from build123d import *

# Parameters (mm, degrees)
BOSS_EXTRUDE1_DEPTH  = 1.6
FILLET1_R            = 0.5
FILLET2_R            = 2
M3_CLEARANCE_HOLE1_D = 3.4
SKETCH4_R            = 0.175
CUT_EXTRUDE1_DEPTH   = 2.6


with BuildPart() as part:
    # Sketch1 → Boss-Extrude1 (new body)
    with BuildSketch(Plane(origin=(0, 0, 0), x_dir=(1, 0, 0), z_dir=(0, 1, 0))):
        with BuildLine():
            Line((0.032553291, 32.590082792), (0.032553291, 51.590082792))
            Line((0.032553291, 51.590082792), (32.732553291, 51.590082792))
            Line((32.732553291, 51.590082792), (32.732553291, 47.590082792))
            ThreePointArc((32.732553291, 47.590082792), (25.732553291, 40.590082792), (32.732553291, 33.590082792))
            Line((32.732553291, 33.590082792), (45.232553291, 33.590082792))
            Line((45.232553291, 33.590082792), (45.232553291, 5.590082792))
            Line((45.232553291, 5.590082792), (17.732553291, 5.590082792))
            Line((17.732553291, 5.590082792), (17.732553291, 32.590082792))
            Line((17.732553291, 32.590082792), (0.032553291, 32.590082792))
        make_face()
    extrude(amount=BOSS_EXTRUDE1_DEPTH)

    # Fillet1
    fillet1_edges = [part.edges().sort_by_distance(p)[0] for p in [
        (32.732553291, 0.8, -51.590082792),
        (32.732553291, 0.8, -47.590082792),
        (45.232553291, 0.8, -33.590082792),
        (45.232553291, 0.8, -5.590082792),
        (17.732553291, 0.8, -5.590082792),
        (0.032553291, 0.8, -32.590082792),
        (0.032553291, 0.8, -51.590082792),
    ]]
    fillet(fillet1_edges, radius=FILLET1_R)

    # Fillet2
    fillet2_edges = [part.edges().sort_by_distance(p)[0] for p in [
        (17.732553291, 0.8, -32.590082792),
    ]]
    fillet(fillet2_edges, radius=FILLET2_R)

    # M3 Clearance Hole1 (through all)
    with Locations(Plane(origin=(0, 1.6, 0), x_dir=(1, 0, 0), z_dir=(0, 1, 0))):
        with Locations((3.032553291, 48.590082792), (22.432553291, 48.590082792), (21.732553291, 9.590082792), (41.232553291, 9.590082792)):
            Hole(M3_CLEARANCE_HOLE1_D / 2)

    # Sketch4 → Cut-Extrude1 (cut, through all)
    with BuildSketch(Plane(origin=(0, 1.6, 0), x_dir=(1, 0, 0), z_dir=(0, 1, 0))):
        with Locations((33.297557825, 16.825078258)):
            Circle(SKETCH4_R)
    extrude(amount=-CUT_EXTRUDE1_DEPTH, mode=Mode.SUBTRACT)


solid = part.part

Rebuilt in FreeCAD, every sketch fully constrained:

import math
import FreeCAD as App
import Part
import Sketcher

V = App.Vector
Q = App.Units.Quantity


def edges_at(feature, points):
    """Names of the edges that pass closest to the given points."""
    edges = feature.Shape.Edges
    near = lambda p: min(range(len(edges)), key=lambda i: edges[i].distToShape(Part.Vertex(*p))[0])
    return sorted({f"Edge{near(p) + 1}" for p in points})

doc = App.newDocument("Part")
body = doc.addObject("PartDesign::Body", "Body")

# Sketch on XZ plane
sketch1 = doc.addObject("Sketcher::SketchObject", "Sketch")
body.addObject(sketch1)
sketch1.AttachmentSupport = (doc.XZ_Plane, [""])
sketch1.MapMode = "FlatFace"
sketch1.addGeometry([
    Part.LineSegment(V(0, -51.6, 0), V(0, -32.6, 0)),  # 0
    Part.LineSegment(V(0, -32.6, 0), V(17.7, -32.6, 0)),  # 1
    Part.LineSegment(V(17.7, -32.6, 0), V(17.7, -5.6, 0)),  # 2
    Part.LineSegment(V(17.7, -5.6, 0), V(45.2, -5.6, 0)),  # 3
    Part.LineSegment(V(45.2, -5.6, 0), V(45.2, -33.6, 0)),  # 4
    Part.LineSegment(V(45.2, -33.6, 0), V(32.7, -33.6, 0)),  # 5
    Part.ArcOfCircle(Part.Circle(V(32.7, -40.6, 0), V(0, 0, 1), 7), math.radians(90), math.radians(270)),  # 6
    Part.LineSegment(V(32.7, -47.6, 0), V(32.7, -51.6, 0)),  # 7
    Part.LineSegment(V(32.7, -51.6, 0), V(0, -51.6, 0)),  # 8
], False)
sketch1.addConstraint([
    Sketcher.Constraint("Coincident", 0, 2, 1, 1),
    Sketcher.Constraint("Coincident", 1, 2, 2, 1),
    Sketcher.Constraint("Coincident", 2, 2, 3, 1),
    Sketcher.Constraint("Coincident", 3, 2, 4, 1),
    Sketcher.Constraint("Coincident", 4, 2, 5, 1),
    Sketcher.Constraint("Tangent", 5, 2, 6, 1),
    Sketcher.Constraint("Coincident", 6, 2, 7, 1),
    Sketcher.Constraint("Coincident", 7, 2, 8, 1),
    Sketcher.Constraint("Coincident", 8, 2, 0, 1),
    Sketcher.Constraint("Vertical", 0),
    Sketcher.Constraint("Horizontal", 1),
    Sketcher.Constraint("Vertical", 2),
    Sketcher.Constraint("Horizontal", 3),
    Sketcher.Constraint("Vertical", 4),
    Sketcher.Constraint("Horizontal", 5),
    Sketcher.Constraint("Vertical", 7),
    Sketcher.Constraint("Horizontal", 8),
    Sketcher.Constraint("Vertical", 5, 2, 6, 2),
    Sketcher.Constraint("Radius", 6, Q("7 mm")),
    Sketcher.Constraint("DistanceY", 0, 1, 0, 2, Q("19 mm")),
    Sketcher.Constraint("DistanceY", 2, 1, 2, 2, Q("27 mm")),
    Sketcher.Constraint("DistanceY", 4, 2, 4, 1, Q("28 mm")),
    Sketcher.Constraint("DistanceX", 1, 1, 1, 2, Q("17.7 mm")),
    Sketcher.Constraint("DistanceX", 3, 1, 3, 2, Q("27.5 mm")),
    Sketcher.Constraint("DistanceX", 5, 2, 5, 1, Q("12.5 mm")),
    Sketcher.Constraint("DistanceX", -1, 1, 6, 3, Q("32.732553 mm")),
    Sketcher.Constraint("DistanceY", 6, 3, -1, 1, Q("40.590083 mm")),
])
pad1 = doc.addObject("PartDesign::Pad", "Pad")
body.addObject(pad1)
pad1.Profile = sketch1
pad1.Length = 1.6
pad1.Reversed = True
doc.recompute()

fillet = doc.addObject("PartDesign::Fillet", "Fillet")
body.addObject(fillet)
fillet.Base = (pad1, edges_at(pad1, [
    (32.733, 0.8, -51.59),
    (32.733, 0.8, -47.59),
    (45.233, 0.8, -33.59),
    (45.233, 0.8, -5.59),
    (17.733, 0.8, -5.59),
    (0.033, 0.8, -32.59),
    (0.033, 0.8, -51.59),
]))
fillet.Radius = 0.5
doc.recompute()

fillet2 = doc.addObject("PartDesign::Fillet", "Fillet001")
body.addObject(fillet2)
fillet2.Base = (fillet, edges_at(fillet, [(17.733, 0.8, -32.59)]))
fillet2.Radius = 2

# Sketch on XZ plane
sketch2 = doc.addObject("Sketcher::SketchObject", "Sketch001")
body.addObject(sketch2)
sketch2.AttachmentSupport = (doc.XZ_Plane, [""])
sketch2.MapMode = "FlatFace"
sketch2.AttachmentOffset = App.Placement(V(0, 0, -1.6), App.Rotation())
sketch2.addGeometry([
    Part.Circle(V(3, -48.6, 0), V(0, 0, 1), 1.7),
    Part.Circle(V(22.4, -48.6, 0), V(0, 0, 1), 1.7),
    Part.Circle(V(21.7, -9.6, 0), V(0, 0, 1), 1.7),
    Part.Circle(V(41.2, -9.6, 0), V(0, 0, 1), 1.7),
], False)
sketch2.addConstraint([
    Sketcher.Constraint("Equal", 0, 1),
    Sketcher.Constraint("Equal", 1, 2),
    Sketcher.Constraint("Equal", 2, 3),
    Sketcher.Constraint("Horizontal", 0, 3, 1, 3),
    Sketcher.Constraint("Horizontal", 2, 3, 3, 3),
    Sketcher.Constraint("Diameter", 0, Q("3.4 mm")),
    Sketcher.Constraint("DistanceY", 1, 3, 2, 3, Q("39 mm")),
    Sketcher.Constraint("DistanceX", 0, 3, 1, 3, Q("19.4 mm")),
    Sketcher.Constraint("DistanceX", 2, 3, 1, 3, Q("0.7 mm")),
    Sketcher.Constraint("DistanceX", 2, 3, 3, 3, Q("19.5 mm")),
    Sketcher.Constraint("DistanceX", -1, 1, 0, 3, Q("3.032553 mm")),
    Sketcher.Constraint("DistanceY", 0, 3, -1, 1, Q("48.590083 mm")),
])
doc.recompute()
hole = doc.addObject("PartDesign::Hole", "Hole")
body.addObject(hole)
hole.Profile = sketch2
hole.ThreadType = "None"
hole.Diameter = 3.4
hole.DepthType = "ThroughAll"
hole.Reversed = True

# Sketch on XZ plane
sketch3 = doc.addObject("Sketcher::SketchObject", "Sketch002")
body.addObject(sketch3)
sketch3.AttachmentSupport = (doc.XZ_Plane, [""])
sketch3.MapMode = "FlatFace"
sketch3.AttachmentOffset = App.Placement(V(0, 0, -1.6), App.Rotation())
sketch3.addGeometry(Part.Circle(V(33.3, -16.83, 0), V(0, 0, 1), 0.17), False)
sketch3.addConstraint([
    Sketcher.Constraint("Diameter", 0, Q("0.35 mm")),
    Sketcher.Constraint("DistanceY", 0, 3, -1, 1, Q("16.825078 mm")),
    Sketcher.Constraint("DistanceX", -1, 1, 0, 3, Q("33.297558 mm")),
])
pocket1 = doc.addObject("PartDesign::Pocket", "Pocket")
body.addObject(pocket1)
pocket1.Profile = sketch3
pocket1.Type = "ThroughAll"
pocket1.Reversed = True

doc.recompute()
